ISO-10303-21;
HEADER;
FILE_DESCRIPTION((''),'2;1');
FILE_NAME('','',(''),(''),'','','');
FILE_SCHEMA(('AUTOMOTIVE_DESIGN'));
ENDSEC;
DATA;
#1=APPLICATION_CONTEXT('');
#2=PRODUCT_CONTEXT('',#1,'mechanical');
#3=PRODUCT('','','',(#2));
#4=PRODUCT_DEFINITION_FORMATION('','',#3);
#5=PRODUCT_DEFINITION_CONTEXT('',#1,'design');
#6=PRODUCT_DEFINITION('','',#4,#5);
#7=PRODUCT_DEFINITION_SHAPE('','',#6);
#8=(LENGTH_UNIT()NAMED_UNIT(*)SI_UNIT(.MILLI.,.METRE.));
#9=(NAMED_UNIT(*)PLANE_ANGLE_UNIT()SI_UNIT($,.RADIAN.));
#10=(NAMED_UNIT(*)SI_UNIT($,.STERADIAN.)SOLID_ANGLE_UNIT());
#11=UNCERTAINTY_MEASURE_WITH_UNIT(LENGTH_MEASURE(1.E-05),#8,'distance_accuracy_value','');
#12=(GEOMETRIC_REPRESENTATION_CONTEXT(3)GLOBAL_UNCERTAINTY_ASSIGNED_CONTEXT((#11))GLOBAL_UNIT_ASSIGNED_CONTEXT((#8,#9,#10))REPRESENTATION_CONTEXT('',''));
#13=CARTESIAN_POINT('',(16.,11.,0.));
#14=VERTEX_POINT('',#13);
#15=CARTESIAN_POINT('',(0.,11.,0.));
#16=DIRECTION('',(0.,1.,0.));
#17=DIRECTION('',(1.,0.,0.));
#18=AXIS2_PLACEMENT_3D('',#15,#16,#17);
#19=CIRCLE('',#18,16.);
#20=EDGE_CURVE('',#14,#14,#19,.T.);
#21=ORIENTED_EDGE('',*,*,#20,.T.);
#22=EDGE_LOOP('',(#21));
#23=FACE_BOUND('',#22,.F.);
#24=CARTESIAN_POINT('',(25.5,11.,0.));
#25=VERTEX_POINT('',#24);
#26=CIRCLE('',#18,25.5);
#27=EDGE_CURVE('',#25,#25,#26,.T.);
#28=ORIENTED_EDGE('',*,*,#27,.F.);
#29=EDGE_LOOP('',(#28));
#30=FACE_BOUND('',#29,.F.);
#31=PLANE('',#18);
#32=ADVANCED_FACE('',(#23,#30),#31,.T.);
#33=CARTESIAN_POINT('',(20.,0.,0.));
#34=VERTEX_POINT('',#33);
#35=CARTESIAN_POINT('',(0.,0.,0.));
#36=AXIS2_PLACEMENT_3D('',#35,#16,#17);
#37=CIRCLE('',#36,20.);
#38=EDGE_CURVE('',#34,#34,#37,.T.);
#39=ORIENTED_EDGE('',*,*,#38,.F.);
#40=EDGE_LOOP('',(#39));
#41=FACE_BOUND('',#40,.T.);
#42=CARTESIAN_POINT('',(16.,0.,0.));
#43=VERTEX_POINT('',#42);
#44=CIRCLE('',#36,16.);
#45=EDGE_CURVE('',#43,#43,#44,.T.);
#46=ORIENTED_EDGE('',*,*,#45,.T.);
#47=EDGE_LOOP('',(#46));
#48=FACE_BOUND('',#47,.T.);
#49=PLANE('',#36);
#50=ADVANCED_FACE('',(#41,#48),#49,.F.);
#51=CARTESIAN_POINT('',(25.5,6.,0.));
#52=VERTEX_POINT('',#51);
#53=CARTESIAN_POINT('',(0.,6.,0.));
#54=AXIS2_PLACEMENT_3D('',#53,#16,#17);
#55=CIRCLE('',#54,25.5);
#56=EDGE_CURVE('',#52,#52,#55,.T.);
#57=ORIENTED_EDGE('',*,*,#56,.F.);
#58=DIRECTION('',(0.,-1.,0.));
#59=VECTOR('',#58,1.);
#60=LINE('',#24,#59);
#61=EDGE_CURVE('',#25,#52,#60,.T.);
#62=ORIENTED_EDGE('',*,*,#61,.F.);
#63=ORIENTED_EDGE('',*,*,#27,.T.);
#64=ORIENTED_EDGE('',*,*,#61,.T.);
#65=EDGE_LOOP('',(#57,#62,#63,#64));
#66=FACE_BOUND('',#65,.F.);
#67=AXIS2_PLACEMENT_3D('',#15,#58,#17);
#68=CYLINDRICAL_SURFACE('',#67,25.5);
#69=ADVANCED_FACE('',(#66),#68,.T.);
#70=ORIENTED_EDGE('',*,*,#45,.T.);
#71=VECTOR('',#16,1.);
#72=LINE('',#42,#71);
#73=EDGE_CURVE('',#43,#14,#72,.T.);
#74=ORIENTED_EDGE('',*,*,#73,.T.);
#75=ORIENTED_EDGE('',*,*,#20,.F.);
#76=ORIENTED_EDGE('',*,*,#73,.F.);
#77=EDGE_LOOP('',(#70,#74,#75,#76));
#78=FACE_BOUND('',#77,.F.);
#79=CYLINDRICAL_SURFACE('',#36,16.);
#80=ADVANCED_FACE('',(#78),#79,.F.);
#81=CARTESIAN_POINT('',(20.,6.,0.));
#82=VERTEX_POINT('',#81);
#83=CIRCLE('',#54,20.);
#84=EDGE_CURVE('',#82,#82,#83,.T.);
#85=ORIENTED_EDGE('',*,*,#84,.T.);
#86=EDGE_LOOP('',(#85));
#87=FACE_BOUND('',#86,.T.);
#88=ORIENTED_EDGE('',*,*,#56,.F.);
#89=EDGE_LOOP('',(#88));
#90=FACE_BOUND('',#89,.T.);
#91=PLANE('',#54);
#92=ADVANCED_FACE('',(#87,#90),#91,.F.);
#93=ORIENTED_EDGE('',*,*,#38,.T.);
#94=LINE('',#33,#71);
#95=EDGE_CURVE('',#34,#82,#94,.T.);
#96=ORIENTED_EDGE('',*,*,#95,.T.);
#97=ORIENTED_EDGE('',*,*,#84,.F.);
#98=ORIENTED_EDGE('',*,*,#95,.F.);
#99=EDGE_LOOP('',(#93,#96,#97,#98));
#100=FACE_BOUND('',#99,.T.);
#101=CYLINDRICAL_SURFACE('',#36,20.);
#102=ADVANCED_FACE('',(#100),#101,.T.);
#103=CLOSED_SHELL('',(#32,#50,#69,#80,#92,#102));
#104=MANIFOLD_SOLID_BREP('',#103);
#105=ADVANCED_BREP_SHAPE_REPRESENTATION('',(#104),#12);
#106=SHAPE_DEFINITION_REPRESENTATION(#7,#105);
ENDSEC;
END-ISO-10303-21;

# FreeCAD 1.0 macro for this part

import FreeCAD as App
import Part
import Sketcher


def add_polygon(sketch, points):
    """Adds a closed chain of lines whose ends are joined by coincident constraints."""
    first, n = sketch.GeometryCount, len(points)
    for a, b in zip(points, points[1:] + points[:1]):
        sketch.addGeometry(Part.LineSegment(App.Vector(*a, 0), App.Vector(*b, 0)), False)
    for i in range(n):
        sketch.addConstraint(Sketcher.Constraint("Coincident", first + i, 2, first + (i + 1) % n, 1))

doc = App.newDocument("Part")
body = doc.addObject("PartDesign::Body", "Body")

# Sketch on XY plane
sketch1 = body.newObject("Sketcher::SketchObject", "Sketch")
sketch1.AttachmentSupport = (doc.getObject("XY_Plane"), [""])
sketch1.MapMode = "FlatFace"
add_polygon(sketch1, [(16, 11), (16, 0), (20, 0), (20, 6), (25.5, 6), (25.5, 11)])  # lines 0-5
sketch1.addConstraint([
    Sketcher.Constraint("Vertical", 0),
    Sketcher.Constraint("Horizontal", 1),
    Sketcher.Constraint("Vertical", 2),
    Sketcher.Constraint("Horizontal", 3),
    Sketcher.Constraint("Vertical", 4),
    Sketcher.Constraint("Horizontal", 5),
    Sketcher.Constraint("PointOnObject", 0, 2, -1),
    Sketcher.Constraint("DistanceX", 1, 1, 1, 2, 4.0),
    Sketcher.Constraint("DistanceY", 0, 2, 0, 1, 11.0),
    Sketcher.Constraint("DistanceY", 4, 1, 4, 2, 5.0),
    Sketcher.Constraint("DistanceX", 5, 2, 5, 1, 9.5),
    Sketcher.Constraint("DistanceX", -1, 1, 0, 2, 16.0),
])
revolution = body.newObject("PartDesign::Revolution", "Revolution")
revolution.Profile = sketch1
revolution.ReferenceAxis = (sketch1, ["V_Axis"])
revolution.Angle = 360

doc.recompute()
